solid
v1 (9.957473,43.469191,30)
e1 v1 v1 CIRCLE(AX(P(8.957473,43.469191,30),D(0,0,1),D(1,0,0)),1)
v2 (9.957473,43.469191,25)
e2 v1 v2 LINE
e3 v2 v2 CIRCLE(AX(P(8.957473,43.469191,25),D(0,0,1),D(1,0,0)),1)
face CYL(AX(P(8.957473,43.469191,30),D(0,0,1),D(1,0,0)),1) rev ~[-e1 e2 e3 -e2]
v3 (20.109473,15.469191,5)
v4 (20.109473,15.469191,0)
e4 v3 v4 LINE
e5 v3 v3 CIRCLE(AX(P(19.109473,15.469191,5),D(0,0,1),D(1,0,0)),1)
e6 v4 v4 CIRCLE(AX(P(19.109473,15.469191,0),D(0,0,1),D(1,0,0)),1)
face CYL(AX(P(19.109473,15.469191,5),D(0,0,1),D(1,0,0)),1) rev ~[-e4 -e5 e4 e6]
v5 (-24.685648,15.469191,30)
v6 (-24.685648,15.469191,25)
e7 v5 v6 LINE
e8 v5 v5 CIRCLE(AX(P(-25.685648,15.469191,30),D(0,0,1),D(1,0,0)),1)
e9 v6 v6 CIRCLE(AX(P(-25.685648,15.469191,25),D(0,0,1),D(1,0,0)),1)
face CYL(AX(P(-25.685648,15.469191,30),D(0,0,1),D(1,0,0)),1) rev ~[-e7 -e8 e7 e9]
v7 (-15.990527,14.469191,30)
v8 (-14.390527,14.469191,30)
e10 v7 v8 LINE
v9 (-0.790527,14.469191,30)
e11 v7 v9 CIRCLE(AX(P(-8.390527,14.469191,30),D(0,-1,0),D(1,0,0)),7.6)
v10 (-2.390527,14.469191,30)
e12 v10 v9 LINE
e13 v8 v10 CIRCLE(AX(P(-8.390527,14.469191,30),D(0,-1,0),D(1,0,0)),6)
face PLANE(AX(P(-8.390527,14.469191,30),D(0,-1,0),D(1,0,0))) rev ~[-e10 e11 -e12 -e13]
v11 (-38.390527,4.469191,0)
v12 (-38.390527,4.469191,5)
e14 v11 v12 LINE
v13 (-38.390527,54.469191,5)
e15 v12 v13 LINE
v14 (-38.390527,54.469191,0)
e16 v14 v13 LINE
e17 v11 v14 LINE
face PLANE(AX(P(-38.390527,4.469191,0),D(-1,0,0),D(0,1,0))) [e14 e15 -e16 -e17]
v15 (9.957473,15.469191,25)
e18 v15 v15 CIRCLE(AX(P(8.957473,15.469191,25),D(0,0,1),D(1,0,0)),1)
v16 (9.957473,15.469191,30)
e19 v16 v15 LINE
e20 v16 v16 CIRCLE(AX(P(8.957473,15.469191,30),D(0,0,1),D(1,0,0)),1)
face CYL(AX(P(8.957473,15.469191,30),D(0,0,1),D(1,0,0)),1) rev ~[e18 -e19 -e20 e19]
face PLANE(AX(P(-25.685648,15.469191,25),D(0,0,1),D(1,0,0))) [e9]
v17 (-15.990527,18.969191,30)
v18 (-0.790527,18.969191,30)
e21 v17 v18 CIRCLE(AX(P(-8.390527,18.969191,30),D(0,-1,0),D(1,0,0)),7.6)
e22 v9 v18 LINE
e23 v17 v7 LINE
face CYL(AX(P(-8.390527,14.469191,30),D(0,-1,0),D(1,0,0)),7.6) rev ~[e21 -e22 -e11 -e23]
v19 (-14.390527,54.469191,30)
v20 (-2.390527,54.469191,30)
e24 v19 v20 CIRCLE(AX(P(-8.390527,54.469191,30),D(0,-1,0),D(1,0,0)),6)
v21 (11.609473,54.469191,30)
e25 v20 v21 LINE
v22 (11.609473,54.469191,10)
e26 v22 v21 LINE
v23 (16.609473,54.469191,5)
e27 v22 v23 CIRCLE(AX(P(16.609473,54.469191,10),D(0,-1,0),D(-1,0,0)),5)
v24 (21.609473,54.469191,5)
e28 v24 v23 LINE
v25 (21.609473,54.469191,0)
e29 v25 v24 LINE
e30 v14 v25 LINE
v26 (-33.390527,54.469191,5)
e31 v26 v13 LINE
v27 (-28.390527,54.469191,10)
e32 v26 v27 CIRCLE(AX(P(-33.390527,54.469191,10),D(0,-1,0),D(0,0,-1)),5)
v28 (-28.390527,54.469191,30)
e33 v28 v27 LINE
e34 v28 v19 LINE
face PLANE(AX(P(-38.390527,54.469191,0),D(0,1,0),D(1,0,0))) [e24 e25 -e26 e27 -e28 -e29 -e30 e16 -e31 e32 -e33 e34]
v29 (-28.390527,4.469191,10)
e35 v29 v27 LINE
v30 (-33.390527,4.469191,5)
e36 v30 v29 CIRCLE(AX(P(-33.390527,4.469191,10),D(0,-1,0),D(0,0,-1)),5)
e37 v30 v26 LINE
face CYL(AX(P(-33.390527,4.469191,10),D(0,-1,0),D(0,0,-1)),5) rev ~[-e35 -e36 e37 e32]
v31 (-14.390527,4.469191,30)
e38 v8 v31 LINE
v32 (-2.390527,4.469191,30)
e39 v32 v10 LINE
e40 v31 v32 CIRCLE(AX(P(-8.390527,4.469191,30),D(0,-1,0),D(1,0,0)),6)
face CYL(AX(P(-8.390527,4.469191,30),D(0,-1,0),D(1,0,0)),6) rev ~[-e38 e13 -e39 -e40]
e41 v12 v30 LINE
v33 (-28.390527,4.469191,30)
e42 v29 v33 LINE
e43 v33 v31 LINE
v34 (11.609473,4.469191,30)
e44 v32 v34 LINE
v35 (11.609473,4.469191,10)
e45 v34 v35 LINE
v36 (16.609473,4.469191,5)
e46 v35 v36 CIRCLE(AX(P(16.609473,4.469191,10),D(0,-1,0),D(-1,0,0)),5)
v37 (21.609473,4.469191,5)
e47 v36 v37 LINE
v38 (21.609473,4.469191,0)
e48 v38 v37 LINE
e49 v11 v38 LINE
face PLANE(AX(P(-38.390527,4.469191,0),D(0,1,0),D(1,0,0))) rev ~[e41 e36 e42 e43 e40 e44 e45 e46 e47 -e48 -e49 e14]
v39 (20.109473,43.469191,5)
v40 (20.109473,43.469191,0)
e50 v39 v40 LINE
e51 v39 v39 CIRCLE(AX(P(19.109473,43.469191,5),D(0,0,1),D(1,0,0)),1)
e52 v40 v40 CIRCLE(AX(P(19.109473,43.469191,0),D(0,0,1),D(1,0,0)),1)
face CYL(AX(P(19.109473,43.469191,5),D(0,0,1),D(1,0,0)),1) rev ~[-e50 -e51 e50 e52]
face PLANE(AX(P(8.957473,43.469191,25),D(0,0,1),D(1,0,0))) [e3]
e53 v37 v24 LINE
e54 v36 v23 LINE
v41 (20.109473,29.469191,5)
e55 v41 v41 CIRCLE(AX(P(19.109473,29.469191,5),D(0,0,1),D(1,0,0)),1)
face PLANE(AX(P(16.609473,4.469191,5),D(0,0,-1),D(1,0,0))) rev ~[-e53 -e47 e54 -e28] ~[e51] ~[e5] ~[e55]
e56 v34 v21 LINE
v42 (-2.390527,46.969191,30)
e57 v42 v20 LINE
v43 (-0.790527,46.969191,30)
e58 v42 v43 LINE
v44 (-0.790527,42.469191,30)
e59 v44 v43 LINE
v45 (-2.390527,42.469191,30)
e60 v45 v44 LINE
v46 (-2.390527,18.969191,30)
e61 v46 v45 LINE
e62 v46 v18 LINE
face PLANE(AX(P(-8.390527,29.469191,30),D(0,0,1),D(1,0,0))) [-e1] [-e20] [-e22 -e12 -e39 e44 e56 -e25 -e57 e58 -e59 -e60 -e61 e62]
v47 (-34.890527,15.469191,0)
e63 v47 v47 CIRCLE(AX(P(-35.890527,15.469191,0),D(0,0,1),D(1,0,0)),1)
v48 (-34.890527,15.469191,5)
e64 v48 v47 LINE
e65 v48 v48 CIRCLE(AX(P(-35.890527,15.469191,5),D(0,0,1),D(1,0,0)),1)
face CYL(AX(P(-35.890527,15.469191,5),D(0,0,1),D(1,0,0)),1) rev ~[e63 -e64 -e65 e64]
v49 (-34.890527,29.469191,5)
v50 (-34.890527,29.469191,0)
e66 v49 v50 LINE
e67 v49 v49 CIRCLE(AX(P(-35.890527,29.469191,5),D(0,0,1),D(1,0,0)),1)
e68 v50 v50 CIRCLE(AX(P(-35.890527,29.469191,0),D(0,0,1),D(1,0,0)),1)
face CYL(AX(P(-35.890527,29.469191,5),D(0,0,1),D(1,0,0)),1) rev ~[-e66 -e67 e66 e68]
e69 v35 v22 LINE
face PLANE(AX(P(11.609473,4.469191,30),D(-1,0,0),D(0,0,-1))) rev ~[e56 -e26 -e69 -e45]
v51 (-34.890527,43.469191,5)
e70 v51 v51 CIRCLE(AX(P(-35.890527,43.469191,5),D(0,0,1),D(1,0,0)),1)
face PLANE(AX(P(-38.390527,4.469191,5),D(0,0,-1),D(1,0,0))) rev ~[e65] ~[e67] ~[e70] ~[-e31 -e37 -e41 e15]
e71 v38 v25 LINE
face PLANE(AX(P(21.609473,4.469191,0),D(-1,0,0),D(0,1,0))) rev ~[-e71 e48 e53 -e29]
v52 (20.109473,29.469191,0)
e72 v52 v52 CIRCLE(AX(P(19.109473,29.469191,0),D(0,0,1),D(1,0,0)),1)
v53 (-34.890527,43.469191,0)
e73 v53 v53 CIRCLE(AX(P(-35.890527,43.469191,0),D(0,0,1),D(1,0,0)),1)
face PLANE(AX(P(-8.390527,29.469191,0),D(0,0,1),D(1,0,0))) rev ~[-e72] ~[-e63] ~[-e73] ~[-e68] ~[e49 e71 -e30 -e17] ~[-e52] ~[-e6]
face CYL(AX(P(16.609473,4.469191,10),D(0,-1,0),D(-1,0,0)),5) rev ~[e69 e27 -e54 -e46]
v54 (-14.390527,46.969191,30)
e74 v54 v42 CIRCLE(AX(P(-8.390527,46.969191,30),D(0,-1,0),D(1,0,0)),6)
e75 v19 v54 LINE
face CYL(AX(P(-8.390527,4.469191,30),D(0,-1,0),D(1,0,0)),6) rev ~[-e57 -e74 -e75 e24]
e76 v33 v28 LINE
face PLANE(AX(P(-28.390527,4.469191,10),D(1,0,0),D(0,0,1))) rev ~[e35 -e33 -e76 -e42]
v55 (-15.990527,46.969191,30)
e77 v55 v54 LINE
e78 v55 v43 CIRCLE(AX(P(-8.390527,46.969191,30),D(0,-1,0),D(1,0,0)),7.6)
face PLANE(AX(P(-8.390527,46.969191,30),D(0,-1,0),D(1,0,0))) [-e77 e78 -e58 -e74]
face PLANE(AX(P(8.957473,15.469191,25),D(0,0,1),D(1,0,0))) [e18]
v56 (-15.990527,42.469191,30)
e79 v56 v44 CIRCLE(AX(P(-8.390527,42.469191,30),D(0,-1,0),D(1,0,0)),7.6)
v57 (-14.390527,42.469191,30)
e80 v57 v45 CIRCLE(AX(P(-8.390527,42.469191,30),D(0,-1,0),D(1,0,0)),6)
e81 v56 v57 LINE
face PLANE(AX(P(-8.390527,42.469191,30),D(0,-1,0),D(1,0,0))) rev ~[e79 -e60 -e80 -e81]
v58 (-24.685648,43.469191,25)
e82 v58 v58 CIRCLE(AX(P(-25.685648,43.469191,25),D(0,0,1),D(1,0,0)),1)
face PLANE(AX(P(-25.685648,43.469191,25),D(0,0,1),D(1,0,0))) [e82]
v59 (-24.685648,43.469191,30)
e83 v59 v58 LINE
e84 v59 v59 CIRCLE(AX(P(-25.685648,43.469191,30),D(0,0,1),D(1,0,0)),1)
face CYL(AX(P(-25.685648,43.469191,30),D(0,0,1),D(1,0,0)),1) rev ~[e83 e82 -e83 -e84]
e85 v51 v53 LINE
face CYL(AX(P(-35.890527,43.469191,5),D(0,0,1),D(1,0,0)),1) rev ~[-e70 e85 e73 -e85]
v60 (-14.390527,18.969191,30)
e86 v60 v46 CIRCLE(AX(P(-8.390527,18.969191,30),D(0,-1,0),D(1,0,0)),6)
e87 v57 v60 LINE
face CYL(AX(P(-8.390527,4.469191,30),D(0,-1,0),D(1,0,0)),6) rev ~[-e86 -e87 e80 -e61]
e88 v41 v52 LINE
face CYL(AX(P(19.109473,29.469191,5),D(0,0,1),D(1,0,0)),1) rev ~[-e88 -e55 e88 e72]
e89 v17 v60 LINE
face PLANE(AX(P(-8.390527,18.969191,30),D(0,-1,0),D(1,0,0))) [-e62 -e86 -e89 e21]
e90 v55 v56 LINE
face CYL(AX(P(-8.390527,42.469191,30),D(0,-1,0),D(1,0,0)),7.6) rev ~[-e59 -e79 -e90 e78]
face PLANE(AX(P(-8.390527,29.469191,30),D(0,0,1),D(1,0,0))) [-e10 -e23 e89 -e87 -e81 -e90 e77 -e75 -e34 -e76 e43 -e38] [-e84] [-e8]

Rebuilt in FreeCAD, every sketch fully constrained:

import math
import FreeCAD as App
import Part
import Sketcher


def add_polygon(sketch, points):
    """Adds a closed chain of lines whose ends are joined by coincident constraints."""
    first, n = sketch.GeometryCount, len(points)
    for a, b in zip(points, points[1:] + points[:1]):
        sketch.addGeometry(Part.LineSegment(App.Vector(*a, 0), App.Vector(*b, 0)), False)
    for i in range(n):
        sketch.addConstraint(Sketcher.Constraint("Coincident", first + i, 2, first + (i + 1) % n, 1))

doc = App.newDocument("Part")
body = doc.addObject("PartDesign::Body", "Body")

# Sketch on XY plane
sketch1 = body.newObject("Sketcher::SketchObject", "Sketch")
sketch1.AttachmentSupport = (doc.getObject("XY_Plane"), [""])
sketch1.MapMode = "FlatFace"
add_polygon(sketch1, [(-38, 54), (-38, 4), (22, 4), (22, 54)])  # lines 0-3
sketch1.addConstraint(Sketcher.Constraint("Vertical", 0))
sketch1.addConstraint(Sketcher.Constraint("Horizontal", 1))
sketch1.addConstraint(Sketcher.Constraint("Vertical", 2))
sketch1.addConstraint(Sketcher.Constraint("Horizontal", 3))
sketch1.addConstraint(Sketcher.Constraint("DistanceX", 1, 1, 1, 2, 60.0))
sketch1.addConstraint(Sketcher.Constraint("DistanceY", 0, 2, 0, 1, 50.0))
sketch1.addConstraint(Sketcher.Constraint("DistanceY", -1, 1, 0, 2, 4.469191))
sketch1.addConstraint(Sketcher.Constraint("DistanceX", 0, 2, -1, 1, 38.390527))
pad1 = body.newObject("PartDesign::Pad", "Pad")
pad1.Profile = sketch1
pad1.Length = 30

# Sketch on XZ plane
sketch2 = body.newObject("Sketcher::SketchObject", "Sketch001")
sketch2.AttachmentSupport = (doc.getObject("XZ_Plane"), [""])
sketch2.MapMode = "FlatFace"
sketch2.AttachmentOffset = App.Placement(App.Vector(0, 0, -4.469191), App.Rotation())
sketch2.addGeometry(Part.Circle(App.Vector(-8, 30, 0), App.Vector(0, 0, 1), 6), False)
sketch2.addGeometry(Part.LineSegment(App.Vector(-28, 10, 0), App.Vector(-28, 30, 0)), False)
sketch2.addGeometry(Part.LineSegment(App.Vector(-28, 30, 0), App.Vector(-38, 30, 0)), False)
sketch2.addGeometry(Part.LineSegment(App.Vector(-38, 30, 0), App.Vector(-38, 5, 0)), False)
sketch2.addGeometry(Part.LineSegment(App.Vector(-38, 5, 0), App.Vector(-33, 5, 0)), False)
sketch2.addGeometry(Part.ArcOfCircle(Part.Circle(App.Vector(-33, 10, 0), App.Vector(0, 0, 1), 5), math.radians(-90), math.radians(0)), False)
sketch2.addGeometry(Part.LineSegment(App.Vector(22, 5, 0), App.Vector(22, 30, 0)), False)
sketch2.addGeometry(Part.LineSegment(App.Vector(22, 30, 0), App.Vector(12, 30, 0)), False)
sketch2.addGeometry(Part.LineSegment(App.Vector(12, 30, 0), App.Vector(12, 10, 0)), False)
sketch2.addGeometry(Part.ArcOfCircle(Part.Circle(App.Vector(17, 10, 0), App.Vector(0, 0, 1), 5), math.radians(180), math.radians(270)), False)
sketch2.addGeometry(Part.LineSegment(App.Vector(17, 5, 0), App.Vector(22, 5, 0)), False)
sketch2.addConstraint(Sketcher.Constraint("Coincident", 1, 2, 2, 1))
sketch2.addConstraint(Sketcher.Constraint("Coincident", 2, 2, 3, 1))
sketch2.addConstraint(Sketcher.Constraint("Coincident", 3, 2, 4, 1))
sketch2.addConstraint(Sketcher.Constraint("Tangent", 4, 2, 5, 1))
sketch2.addConstraint(Sketcher.Constraint("Tangent", 5, 2, 1, 1))
sketch2.addConstraint(Sketcher.Constraint("Coincident", 6, 2, 7, 1))
sketch2.addConstraint(Sketcher.Constraint("Coincident", 7, 2, 8, 1))
sketch2.addConstraint(Sketcher.Constraint("Tangent", 8, 2, 9, 1))
sketch2.addConstraint(Sketcher.Constraint("Tangent", 9, 2, 10, 1))
sketch2.addConstraint(Sketcher.Constraint("Coincident", 10, 2, 6, 1))
sketch2.addConstraint(Sketcher.Constraint("Vertical", 1))
sketch2.addConstraint(Sketcher.Constraint("Horizontal", 2))
sketch2.addConstraint(Sketcher.Constraint("Vertical", 3))
sketch2.addConstraint(Sketcher.Constraint("Horizontal", 4))
sketch2.addConstraint(Sketcher.Constraint("Vertical", 6))
sketch2.addConstraint(Sketcher.Constraint("Horizontal", 7))
sketch2.addConstraint(Sketcher.Constraint("Vertical", 8))
sketch2.addConstraint(Sketcher.Constraint("Horizontal", 10))
sketch2.addConstraint(Sketcher.Constraint("Equal", 5, 9))
sketch2.addConstraint(Sketcher.Constraint("Horizontal", 5, 3, 9, 3))
sketch2.addConstraint(Sketcher.Constraint("Horizontal", 0, 3, 1, 2))
sketch2.addConstraint(Sketcher.Constraint("Horizontal", 2, 2, 6, 2))
sketch2.addConstraint(Sketcher.Constraint("Equal", 2, 7))
sketch2.addConstraint(Sketcher.Constraint("Diameter", 0, 12.0))
sketch2.addConstraint(Sketcher.Constraint("Radius", 5, 5.0))
sketch2.addConstraint(Sketcher.Constraint("DistanceX", 2, 2, 2, 1, 10.0))
sketch2.addConstraint(Sketcher.Constraint("DistanceY", 1, 1, 1, 2, 20.0))
sketch2.addConstraint(Sketcher.Constraint("DistanceY", -1, 1, 0, 3, 30.0))
sketch2.addConstraint(Sketcher.Constraint("DistanceX", 5, 3, 0, 3, 25.0))
sketch2.addConstraint(Sketcher.Constraint("DistanceX", 0, 3, 9, 3, 25.0))
sketch2.addConstraint(Sketcher.Constraint("DistanceX", 0, 3, -1, 1, 8.390527))
pocket1 = body.newObject("PartDesign::Pocket", "Pocket")
pocket1.Profile = sketch2
pocket1.Length = 90

# Sketch on XZ plane
sketch3 = body.newObject("Sketcher::SketchObject", "Sketch002")
sketch3.AttachmentSupport = (doc.getObject("XZ_Plane"), [""])
sketch3.MapMode = "FlatFace"
sketch3.AttachmentOffset = App.Placement(App.Vector(0, 0, -14.469191), App.Rotation())
sketch3.addGeometry(Part.Circle(App.Vector(-8, 30, 0), App.Vector(0, 0, 1), 8), False)
sketch3.addConstraint(Sketcher.Constraint("Diameter", 0, 15.2))
sketch3.addConstraint(Sketcher.Constraint("DistanceY", -1, 1, 0, 3, 30.0))
sketch3.addConstraint(Sketcher.Constraint("DistanceX", 0, 3, -1, 1, 8.390527))
pocket2 = body.newObject("PartDesign::Pocket", "Pocket001")
pocket2.Profile = sketch3
pocket2.Length = 4.5

# Sketch on XZ plane
sketch4 = body.newObject("Sketcher::SketchObject", "Sketch003")
sketch4.AttachmentSupport = (doc.getObject("XZ_Plane"), [""])
sketch4.MapMode = "FlatFace"
sketch4.AttachmentOffset = App.Placement(App.Vector(0, 0, -42.469191), App.Rotation())
sketch4.addGeometry(Part.Circle(App.Vector(-8, 30, 0), App.Vector(0, 0, 1), 8), False)
sketch4.addConstraint(Sketcher.Constraint("Diameter", 0, 15.2))
sketch4.addConstraint(Sketcher.Constraint("DistanceY", -1, 1, 0, 3, 30.0))
sketch4.addConstraint(Sketcher.Constraint("DistanceX", 0, 3, -1, 1, 8.390527))
pocket3 = body.newObject("PartDesign::Pocket", "Pocket002")
pocket3.Profile = sketch4
pocket3.Length = 4.5

# Sketch on XY plane
sketch5 = body.newObject("Sketcher::SketchObject", "Sketch004")
sketch5.AttachmentSupport = (doc.getObject("XY_Plane"), [""])
sketch5.MapMode = "FlatFace"
sketch5.AttachmentOffset = App.Placement(App.Vector(0, 0, 5), App.Rotation())
sketch5.addGeometry(Part.Circle(App.Vector(19.1, 15.5, 0), App.Vector(0, 0, 1), 1), False)
sketch5.addGeometry(Part.Circle(App.Vector(19.1, 43.5, 0), App.Vector(0, 0, 1), 1), False)
sketch5.addGeometry(Part.Circle(App.Vector(19.1, 29.5, 0), App.Vector(0, 0, 1), 1), False)
sketch5.addGeometry(Part.Circle(App.Vector(-35.9, 15.5, 0), App.Vector(0, 0, 1), 1), False)
sketch5.addGeometry(Part.Circle(App.Vector(-35.9, 29.5, 0), App.Vector(0, 0, 1), 1), False)
sketch5.addGeometry(Part.Circle(App.Vector(-35.9, 43.5, 0), App.Vector(0, 0, 1), 1), False)
sketch5.addConstraint(Sketcher.Constraint("Equal", 0, 1))
sketch5.addConstraint(Sketcher.Constraint("Equal", 1, 2))
sketch5.addConstraint(Sketcher.Constraint("Equal", 2, 3))
sketch5.addConstraint(Sketcher.Constraint("Equal", 3, 4))
sketch5.addConstraint(Sketcher.Constraint("Equal", 4, 5))
sketch5.addConstraint(Sketcher.Constraint("Horizontal", 0, 3, 3, 3))
sketch5.addConstraint(Sketcher.Constraint("Horizontal", 2, 3, 4, 3))
sketch5.addConstraint(Sketcher.Constraint("Horizontal", 1, 3, 5, 3))
sketch5.addConstraint(Sketcher.Constraint("Vertical", 0, 3, 1, 3))
sketch5.addConstraint(Sketcher.Constraint("Vertical", 1, 3, 2, 3))
sketch5.addConstraint(Sketcher.Constraint("Vertical", 3, 3, 4, 3))
sketch5.addConstraint(Sketcher.Constraint("Vertical", 4, 3, 5, 3))
sketch5.addConstraint(Sketcher.Constraint("Diameter", 0, 2.0))
sketch5.addConstraint(Sketcher.Constraint("DistanceY", 0, 3, 1, 3, 28.0))
sketch5.addConstraint(Sketcher.Constraint("DistanceY", 0, 3, 2, 3, 14.0))
sketch5.addConstraint(Sketcher.Constraint("DistanceX", 3, 3, 0, 3, 55.0))
sketch5.addConstraint(Sketcher.Constraint("DistanceY", -1, 1, 0, 3, 15.469191))
sketch5.addConstraint(Sketcher.Constraint("DistanceX", -1, 1, 0, 3, 19.109473))
pocket4 = body.newObject("PartDesign::Pocket", "Pocket003")
pocket4.Profile = sketch5
pocket4.Length = 25

# Sketch on XY plane
sketch6 = body.newObject("Sketcher::SketchObject", "Sketch005")
sketch6.AttachmentSupport = (doc.getObject("XY_Plane"), [""])
sketch6.MapMode = "FlatFace"
sketch6.AttachmentOffset = App.Placement(App.Vector(0, 0, 30), App.Rotation())
sketch6.addGeometry(Part.Circle(App.Vector(9, 43.5, 0), App.Vector(0, 0, 1), 1), False)
sketch6.addGeometry(Part.Circle(App.Vector(9, 15.5, 0), App.Vector(0, 0, 1), 1), False)
sketch6.addGeometry(Part.Circle(App.Vector(-25.7, 15.5, 0), App.Vector(0, 0, 1), 1), False)
sketch6.addGeometry(Part.Circle(App.Vector(-25.7, 43.5, 0), App.Vector(0, 0, 1), 1), False)
sketch6.addConstraint(Sketcher.Constraint("Equal", 0, 1))
sketch6.addConstraint(Sketcher.Constraint("Equal", 1, 2))
sketch6.addConstraint(Sketcher.Constraint("Equal", 2, 3))
sketch6.addConstraint(Sketcher.Constraint("Horizontal", 1, 3, 2, 3))
sketch6.addConstraint(Sketcher.Constraint("Horizontal", 0, 3, 3, 3))
sketch6.addConstraint(Sketcher.Constraint("Vertical", 0, 3, 1, 3))
sketch6.addConstraint(Sketcher.Constraint("Vertical", 2, 3, 3, 3))
sketch6.addConstraint(Sketcher.Constraint("Diameter", 0, 2.0))
sketch6.addConstraint(Sketcher.Constraint("DistanceY", 1, 3, 0, 3, 28.0))
sketch6.addConstraint(Sketcher.Constraint("DistanceY", -1, 1, 0, 3, 43.469191))
sketch6.addConstraint(Sketcher.Constraint("DistanceX", 2, 3, -1, 1, 25.685648))
sketch6.addConstraint(Sketcher.Constraint("DistanceX", 2, 3, 1, 3, 34.643121))
pocket5 = body.newObject("PartDesign::Pocket", "Pocket004")
pocket5.Profile = sketch6
pocket5.Length = 5

doc.recompute()
